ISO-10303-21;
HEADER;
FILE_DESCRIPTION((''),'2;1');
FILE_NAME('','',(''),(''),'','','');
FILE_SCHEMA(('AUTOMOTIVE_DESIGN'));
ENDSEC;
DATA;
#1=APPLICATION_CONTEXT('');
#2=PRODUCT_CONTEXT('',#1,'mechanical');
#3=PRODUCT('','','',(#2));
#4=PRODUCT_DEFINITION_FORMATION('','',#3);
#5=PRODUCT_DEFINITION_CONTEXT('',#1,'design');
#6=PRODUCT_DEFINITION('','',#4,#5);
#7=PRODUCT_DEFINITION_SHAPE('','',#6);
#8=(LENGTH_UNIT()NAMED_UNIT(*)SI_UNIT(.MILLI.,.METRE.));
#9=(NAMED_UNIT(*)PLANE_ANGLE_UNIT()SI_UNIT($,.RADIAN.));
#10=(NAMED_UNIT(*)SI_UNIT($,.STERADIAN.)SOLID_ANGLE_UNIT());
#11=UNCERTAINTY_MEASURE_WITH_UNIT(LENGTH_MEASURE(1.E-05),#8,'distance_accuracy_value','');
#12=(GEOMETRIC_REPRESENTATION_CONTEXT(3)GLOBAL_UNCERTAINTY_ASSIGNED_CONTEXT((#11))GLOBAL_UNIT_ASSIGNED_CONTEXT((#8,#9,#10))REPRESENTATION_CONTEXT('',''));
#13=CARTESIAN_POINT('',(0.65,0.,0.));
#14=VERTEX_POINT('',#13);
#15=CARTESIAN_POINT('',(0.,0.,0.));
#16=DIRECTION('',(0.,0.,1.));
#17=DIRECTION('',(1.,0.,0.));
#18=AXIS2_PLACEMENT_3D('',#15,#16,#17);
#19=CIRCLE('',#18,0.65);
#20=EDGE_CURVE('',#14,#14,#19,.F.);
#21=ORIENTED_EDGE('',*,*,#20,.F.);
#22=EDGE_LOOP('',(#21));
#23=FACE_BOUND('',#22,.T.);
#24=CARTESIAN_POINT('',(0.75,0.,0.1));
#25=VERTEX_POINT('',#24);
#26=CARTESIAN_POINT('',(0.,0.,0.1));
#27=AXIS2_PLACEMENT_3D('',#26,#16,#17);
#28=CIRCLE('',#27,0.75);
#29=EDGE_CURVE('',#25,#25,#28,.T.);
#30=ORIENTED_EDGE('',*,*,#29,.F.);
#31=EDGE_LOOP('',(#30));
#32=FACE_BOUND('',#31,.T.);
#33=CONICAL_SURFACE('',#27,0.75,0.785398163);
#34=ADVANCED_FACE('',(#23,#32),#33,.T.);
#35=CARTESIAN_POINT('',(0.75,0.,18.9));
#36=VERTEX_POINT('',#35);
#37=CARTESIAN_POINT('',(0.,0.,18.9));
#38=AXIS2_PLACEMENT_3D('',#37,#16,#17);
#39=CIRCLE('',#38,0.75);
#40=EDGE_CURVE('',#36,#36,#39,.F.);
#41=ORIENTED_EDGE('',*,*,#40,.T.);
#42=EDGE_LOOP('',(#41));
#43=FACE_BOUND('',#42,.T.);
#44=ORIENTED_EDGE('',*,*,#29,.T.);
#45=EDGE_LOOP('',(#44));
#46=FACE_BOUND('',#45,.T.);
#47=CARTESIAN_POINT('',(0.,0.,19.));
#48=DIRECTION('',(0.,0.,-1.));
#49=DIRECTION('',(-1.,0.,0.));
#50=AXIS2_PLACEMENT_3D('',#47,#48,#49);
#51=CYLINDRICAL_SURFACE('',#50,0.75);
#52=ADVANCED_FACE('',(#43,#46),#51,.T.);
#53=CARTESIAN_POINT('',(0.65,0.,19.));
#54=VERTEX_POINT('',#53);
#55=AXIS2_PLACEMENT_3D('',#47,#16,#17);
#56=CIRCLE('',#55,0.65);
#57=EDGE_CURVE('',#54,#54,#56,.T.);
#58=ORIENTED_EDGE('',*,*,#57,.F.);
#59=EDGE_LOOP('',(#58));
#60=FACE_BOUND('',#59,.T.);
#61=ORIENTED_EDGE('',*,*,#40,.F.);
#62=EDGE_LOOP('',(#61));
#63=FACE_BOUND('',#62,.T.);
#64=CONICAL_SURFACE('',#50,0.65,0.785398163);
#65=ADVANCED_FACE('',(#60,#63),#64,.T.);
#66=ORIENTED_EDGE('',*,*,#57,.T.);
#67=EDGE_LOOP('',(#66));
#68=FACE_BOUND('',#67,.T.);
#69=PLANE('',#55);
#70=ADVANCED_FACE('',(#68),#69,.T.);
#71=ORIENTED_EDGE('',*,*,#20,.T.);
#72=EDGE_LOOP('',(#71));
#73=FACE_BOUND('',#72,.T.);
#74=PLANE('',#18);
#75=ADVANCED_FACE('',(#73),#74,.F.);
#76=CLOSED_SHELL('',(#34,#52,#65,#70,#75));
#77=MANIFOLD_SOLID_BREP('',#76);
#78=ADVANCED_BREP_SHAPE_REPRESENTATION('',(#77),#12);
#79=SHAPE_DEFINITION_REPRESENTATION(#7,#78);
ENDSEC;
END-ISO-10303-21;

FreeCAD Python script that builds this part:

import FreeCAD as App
import Part
import Sketcher

V = App.Vector
Q = App.Units.Quantity


def edges_at(feature, points):
    """Names of the edges that pass closest to the given points."""
    edges = feature.Shape.Edges
    near = lambda p: min(range(len(edges)), key=lambda i: edges[i].distToShape(Part.Vertex(*p))[0])
    return sorted({f"Edge{near(p) + 1}" for p in points})

doc = App.newDocument("Part")
body = doc.addObject("PartDesign::Body", "Body")

sketch1 = doc.addObject("Sketcher::SketchObject", "Sketch")
body.addObject(sketch1)
sketch1.AttachmentSupport = (doc.XY_Plane, [""])
sketch1.MapMode = "FlatFace"
sketch1.addGeometry(Part.Circle(V(0, 0, 0), V(0, 0, 1), 0.8), False)
sketch1.addConstraint(Sketcher.Constraint("Coincident", 0, 3, -1, 1))
sketch1.addConstraint(Sketcher.Constraint("Diameter", 0, Q("1.5 mm")))
pad1 = doc.addObject("PartDesign::Pad", "Pad")
body.addObject(pad1)
pad1.Profile = sketch1
pad1.Length = 19
doc.recompute()

chamfer = doc.addObject("PartDesign::Chamfer", "Chamfer")
body.addObject(chamfer)
chamfer.Base = (pad1, edges_at(pad1, [(-0.75, 0, 0), (-0.75, 0, 19)]))
chamfer.Size = 0.1

doc.recompute()
